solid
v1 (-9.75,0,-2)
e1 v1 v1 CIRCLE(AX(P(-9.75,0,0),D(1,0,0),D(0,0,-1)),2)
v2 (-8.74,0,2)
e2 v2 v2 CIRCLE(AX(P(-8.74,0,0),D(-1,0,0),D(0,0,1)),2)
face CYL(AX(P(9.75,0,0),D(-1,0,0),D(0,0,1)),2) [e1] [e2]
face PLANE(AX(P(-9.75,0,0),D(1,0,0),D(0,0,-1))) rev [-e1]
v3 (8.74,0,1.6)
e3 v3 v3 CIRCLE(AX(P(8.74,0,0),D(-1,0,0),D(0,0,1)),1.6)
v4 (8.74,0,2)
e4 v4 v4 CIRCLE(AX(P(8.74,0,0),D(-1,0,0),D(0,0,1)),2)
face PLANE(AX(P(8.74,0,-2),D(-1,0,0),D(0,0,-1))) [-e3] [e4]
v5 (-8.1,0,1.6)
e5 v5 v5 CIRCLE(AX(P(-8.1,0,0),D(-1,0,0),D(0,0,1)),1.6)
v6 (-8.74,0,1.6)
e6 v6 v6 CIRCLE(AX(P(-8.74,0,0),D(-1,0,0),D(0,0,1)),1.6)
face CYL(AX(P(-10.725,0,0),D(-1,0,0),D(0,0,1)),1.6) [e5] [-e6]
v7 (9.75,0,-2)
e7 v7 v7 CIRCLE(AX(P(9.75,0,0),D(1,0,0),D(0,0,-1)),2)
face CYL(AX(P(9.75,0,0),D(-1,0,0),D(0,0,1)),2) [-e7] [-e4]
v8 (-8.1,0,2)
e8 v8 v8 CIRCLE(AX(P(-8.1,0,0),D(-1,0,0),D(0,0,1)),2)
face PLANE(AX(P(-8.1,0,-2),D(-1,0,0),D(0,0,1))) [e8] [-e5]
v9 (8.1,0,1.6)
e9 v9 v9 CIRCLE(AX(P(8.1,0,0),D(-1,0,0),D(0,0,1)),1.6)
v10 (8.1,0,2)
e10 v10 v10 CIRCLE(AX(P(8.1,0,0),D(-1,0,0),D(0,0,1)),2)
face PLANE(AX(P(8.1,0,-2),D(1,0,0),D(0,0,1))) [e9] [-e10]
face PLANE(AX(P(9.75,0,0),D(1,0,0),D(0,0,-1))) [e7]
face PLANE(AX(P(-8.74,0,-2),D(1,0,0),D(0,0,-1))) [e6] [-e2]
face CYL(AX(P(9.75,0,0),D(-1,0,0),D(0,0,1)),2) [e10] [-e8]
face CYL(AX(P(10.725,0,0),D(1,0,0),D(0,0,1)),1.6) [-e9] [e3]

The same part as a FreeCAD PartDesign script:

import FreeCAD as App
import Part
import Sketcher
from FreeCAD import Vector


def add_polygon(sketch, points):
    """Adds a closed chain of lines whose ends are joined by coincident constraints."""
    first, n = sketch.GeometryCount, len(points)
    for a, b in zip(points, points[1:] + points[:1]):
        sketch.addGeometry(Part.LineSegment(App.Vector(*a, 0), App.Vector(*b, 0)), False)
    for i in range(n):
        sketch.addConstraint(Sketcher.Constraint("Coincident", first + i, 2, first + (i + 1) % n, 1))

doc = App.newDocument("Part")
body = doc.addObject("PartDesign::Body", "Body")

# Sketch on YZ plane
sketch1 = body.newObject("Sketcher::SketchObject", "Sketch")
sketch1.AttachmentSupport = (doc.getObject("YZ_Plane"), [""])
sketch1.MapMode = "FlatFace"
sketch1.addGeometry(Part.Circle(Vector(0, 0, 0), Vector(0, 0, 1), 2), False)
sketch1.addConstraint(Sketcher.Constraint("Coincident", 0, 3, -1, 1))
sketch1.addConstraint(Sketcher.Constraint("Diameter", 0, 4.0))
pad1 = body.newObject("PartDesign::Pad", "Pad")
pad1.Profile = sketch1
pad1.Length = 19.5
pad1.Midplane = True

# Sketch on XZ plane
sketch2 = body.newObject("Sketcher::SketchObject", "Sketch001")
sketch2.AttachmentSupport = (doc.getObject("XZ_Plane"), [""])
sketch2.MapMode = "FlatFace"
add_polygon(sketch2, [(-8.74, -2), (-8.74, -1.6), (-8.1, -1.6), (-8.1, -2)])  # lines 0-3
sketch2.addConstraint(Sketcher.Constraint("Vertical", 0))
sketch2.addConstraint(Sketcher.Constraint("Horizontal", 1))
sketch2.addConstraint(Sketcher.Constraint("Vertical", 2))
sketch2.addConstraint(Sketcher.Constraint("Horizontal", 3))
sketch2.addConstraint(Sketcher.Constraint("DistanceY", 0, 1, 0, 2, 0.4))
sketch2.addConstraint(Sketcher.Constraint("DistanceY", 2, 2, -1, 1, 2.0))
sketch2.addConstraint(Sketcher.Constraint("DistanceX", 1, 1, 1, 2, 0.64))
sketch2.addConstraint(Sketcher.Constraint("DistanceX", 1, 2, -1, 1, 8.1))
groove = body.newObject("PartDesign::Groove", "Groove")
groove.Profile = sketch2
groove.ReferenceAxis = (sketch2, ["H_Axis"])
groove.Angle = 360
doc.recompute()

mirrored = body.newObject("PartDesign::Mirrored", "Mirrored")
mirrored.Originals = [groove]
mirrored.MirrorPlane = (doc.getObject("YZ_Plane"), [""])
body.Tip = mirrored

doc.recompute()
